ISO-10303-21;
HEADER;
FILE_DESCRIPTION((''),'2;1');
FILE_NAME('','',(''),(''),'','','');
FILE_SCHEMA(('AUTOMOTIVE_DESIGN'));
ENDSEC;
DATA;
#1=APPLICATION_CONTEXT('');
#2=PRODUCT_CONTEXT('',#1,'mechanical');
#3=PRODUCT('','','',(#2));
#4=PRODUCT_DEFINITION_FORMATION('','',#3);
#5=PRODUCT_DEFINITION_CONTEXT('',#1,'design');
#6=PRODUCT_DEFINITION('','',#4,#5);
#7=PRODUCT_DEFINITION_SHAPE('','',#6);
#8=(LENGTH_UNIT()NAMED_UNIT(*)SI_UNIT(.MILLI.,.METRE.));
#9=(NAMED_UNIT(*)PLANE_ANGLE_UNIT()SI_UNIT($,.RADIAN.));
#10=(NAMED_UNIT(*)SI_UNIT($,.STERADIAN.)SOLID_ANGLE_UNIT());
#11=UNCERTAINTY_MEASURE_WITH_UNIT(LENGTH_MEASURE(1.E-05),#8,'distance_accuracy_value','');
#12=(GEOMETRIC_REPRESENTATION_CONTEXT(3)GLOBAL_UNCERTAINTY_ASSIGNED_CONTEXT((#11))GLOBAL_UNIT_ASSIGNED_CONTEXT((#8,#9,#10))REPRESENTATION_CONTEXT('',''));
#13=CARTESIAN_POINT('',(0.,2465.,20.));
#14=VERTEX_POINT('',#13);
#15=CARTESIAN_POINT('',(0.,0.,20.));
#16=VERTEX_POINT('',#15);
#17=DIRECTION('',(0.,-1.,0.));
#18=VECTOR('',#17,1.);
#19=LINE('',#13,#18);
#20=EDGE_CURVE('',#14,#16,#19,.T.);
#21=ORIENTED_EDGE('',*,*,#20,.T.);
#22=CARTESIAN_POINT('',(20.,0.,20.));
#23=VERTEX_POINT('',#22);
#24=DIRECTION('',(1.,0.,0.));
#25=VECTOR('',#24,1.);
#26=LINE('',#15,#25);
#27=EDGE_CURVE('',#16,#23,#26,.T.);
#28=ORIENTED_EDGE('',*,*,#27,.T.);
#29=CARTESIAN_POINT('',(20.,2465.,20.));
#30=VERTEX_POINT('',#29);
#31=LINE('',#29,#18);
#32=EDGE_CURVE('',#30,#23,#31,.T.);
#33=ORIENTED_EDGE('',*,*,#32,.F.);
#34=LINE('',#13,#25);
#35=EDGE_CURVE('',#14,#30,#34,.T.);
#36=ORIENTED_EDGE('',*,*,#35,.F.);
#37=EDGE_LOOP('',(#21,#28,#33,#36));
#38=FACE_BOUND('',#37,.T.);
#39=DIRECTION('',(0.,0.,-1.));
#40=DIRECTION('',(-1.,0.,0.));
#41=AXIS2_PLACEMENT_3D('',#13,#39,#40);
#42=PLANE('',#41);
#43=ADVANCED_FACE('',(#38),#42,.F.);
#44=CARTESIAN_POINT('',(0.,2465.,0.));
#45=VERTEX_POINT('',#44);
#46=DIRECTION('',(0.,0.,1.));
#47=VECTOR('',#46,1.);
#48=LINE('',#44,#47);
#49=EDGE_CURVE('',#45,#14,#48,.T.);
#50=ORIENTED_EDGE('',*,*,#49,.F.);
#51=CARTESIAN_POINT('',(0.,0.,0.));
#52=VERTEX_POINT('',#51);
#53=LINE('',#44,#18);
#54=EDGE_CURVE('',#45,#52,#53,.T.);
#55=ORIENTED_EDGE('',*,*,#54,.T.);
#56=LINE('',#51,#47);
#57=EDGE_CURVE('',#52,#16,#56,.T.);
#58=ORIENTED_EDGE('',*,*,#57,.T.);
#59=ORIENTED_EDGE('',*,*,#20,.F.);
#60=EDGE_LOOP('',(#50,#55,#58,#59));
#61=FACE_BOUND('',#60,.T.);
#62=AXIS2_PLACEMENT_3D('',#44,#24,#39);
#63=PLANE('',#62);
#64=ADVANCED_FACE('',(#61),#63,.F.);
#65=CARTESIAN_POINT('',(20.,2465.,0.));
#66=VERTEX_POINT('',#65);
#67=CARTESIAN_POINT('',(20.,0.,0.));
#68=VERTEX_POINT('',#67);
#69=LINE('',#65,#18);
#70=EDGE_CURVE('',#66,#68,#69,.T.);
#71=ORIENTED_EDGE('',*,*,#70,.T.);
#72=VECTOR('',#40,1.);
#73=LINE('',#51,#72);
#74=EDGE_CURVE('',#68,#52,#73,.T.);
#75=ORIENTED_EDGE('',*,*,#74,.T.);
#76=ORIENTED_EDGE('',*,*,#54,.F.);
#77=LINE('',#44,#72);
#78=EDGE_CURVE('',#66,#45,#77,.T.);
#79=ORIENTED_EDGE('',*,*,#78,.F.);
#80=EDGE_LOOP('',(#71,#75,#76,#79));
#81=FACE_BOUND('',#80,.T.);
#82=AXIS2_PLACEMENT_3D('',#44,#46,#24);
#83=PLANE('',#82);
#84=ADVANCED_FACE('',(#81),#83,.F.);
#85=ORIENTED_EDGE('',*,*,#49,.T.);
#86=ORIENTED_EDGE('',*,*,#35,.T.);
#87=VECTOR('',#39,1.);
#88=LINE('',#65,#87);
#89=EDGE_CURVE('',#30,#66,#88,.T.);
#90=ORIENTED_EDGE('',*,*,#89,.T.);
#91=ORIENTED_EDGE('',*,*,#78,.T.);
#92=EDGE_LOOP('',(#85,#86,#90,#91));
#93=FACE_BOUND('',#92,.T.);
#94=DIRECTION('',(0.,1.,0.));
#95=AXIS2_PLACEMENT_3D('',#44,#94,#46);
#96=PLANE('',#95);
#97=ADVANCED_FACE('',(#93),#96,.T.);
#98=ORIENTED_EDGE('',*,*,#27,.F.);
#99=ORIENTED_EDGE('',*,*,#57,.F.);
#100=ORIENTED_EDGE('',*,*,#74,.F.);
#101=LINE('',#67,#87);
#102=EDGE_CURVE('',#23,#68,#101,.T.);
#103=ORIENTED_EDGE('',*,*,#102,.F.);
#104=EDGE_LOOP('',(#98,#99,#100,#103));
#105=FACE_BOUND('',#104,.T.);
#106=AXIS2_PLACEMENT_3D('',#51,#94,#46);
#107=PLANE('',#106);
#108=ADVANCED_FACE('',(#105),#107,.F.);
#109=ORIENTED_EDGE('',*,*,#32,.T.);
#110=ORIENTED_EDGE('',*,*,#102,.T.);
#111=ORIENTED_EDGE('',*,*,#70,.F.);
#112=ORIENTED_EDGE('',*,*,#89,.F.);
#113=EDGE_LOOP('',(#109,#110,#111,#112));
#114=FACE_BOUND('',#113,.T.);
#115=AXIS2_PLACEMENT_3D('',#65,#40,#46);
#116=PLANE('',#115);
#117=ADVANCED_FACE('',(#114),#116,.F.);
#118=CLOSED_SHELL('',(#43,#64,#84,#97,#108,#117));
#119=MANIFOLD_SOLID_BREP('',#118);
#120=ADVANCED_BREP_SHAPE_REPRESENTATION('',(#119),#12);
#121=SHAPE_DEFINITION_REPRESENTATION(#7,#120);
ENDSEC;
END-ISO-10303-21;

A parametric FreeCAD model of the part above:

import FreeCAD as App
import Part
import Sketcher
from FreeCAD import Vector


def add_polygon(sketch, points):
    """Adds a closed chain of lines whose ends are joined by coincident constraints."""
    first, n = sketch.GeometryCount, len(points)
    for a, b in zip(points, points[1:] + points[:1]):
        sketch.addGeometry(Part.LineSegment(App.Vector(*a, 0), App.Vector(*b, 0)), False)
    for i in range(n):
        sketch.addConstraint(Sketcher.Constraint("Coincident", first + i, 2, first + (i + 1) % n, 1))

doc = App.newDocument("Part")
params = doc.addObject("Spreadsheet::Sheet", "Params")
for row, (alias, value) in enumerate([
    ("sketch1_width", "20 mm"),
    ("pad1_length", "2465 mm"),
], start=1):
    params.set(f"A{row}", alias)
    params.set(f"B{row}", "=" + value)
    params.setAlias(f"B{row}", alias)

body = doc.addObject("PartDesign::Body", "Body")

# Sketch on XZ plane
sketch1 = doc.addObject("Sketcher::SketchObject", "Sketch")
body.addObject(sketch1)
sketch1.AttachmentSupport = (doc.XZ_Plane, [""])
sketch1.MapMode = "FlatFace"
add_polygon(sketch1, [(0, 0), (0, 20), (20, 20), (20, 0)])  # lines 0-3
sketch1.addConstraint(Sketcher.Constraint("Vertical", 0))
sketch1.addConstraint(Sketcher.Constraint("Horizontal", 1))
sketch1.addConstraint(Sketcher.Constraint("Vertical", 2))
sketch1.addConstraint(Sketcher.Constraint("Horizontal", 3))
sketch1.addConstraint(Sketcher.Constraint("Coincident", 3, 2, -1, 1))
sketch1.addConstraint(Sketcher.Constraint("Equal", 3, 0))
sketch1.addConstraint(Sketcher.Constraint("DistanceX", 1, 1, 1, 2, 20.0))
sketch1.setExpression("Constraints[10]", "Params.sketch1_width")
pad1 = doc.addObject("PartDesign::Pad", "Pad")
body.addObject(pad1)
pad1.Profile = sketch1
pad1.setExpression("Length", "Params.pad1_length")
pad1.Reversed = True

doc.recompute()
